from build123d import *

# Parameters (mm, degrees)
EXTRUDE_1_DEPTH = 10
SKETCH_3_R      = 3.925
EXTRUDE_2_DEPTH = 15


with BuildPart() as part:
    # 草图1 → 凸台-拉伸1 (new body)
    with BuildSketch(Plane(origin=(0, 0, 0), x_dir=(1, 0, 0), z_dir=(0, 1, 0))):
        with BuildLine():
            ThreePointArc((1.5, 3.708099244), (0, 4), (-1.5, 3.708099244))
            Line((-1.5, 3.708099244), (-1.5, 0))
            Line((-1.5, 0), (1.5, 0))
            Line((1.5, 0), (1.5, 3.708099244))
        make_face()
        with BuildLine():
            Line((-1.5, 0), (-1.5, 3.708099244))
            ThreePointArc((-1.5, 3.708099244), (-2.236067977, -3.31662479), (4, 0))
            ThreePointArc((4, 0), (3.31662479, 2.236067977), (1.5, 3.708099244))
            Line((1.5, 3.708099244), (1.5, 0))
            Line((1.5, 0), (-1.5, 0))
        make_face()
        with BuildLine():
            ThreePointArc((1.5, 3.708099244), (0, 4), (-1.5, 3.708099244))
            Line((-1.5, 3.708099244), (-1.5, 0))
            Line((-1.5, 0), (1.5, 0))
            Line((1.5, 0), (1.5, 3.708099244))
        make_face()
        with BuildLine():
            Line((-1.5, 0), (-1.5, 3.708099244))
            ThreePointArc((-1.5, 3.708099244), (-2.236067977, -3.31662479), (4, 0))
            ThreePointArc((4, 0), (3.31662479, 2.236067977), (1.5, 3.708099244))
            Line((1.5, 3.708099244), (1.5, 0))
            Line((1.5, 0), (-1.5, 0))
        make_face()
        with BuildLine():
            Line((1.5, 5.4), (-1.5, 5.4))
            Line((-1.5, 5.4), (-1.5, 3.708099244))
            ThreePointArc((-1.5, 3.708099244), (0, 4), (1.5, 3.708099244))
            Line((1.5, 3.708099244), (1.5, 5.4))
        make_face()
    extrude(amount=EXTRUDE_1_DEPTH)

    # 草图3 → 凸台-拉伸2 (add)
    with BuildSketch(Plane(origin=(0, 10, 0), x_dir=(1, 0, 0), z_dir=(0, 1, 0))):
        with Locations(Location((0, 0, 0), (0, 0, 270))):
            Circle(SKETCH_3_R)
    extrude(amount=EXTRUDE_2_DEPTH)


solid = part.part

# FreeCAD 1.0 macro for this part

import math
import FreeCAD as App
import Part
import Sketcher
Q = App.Units.Quantity

doc = App.newDocument("Part")
body = doc.addObject("PartDesign::Body", "Body")

# Sketch on XZ plane
sketch1 = body.newObject("Sketcher::SketchObject", "Sketch")
sketch1.AttachmentSupport = (doc.getObject("XZ_Plane"), [""])
sketch1.MapMode = "FlatFace"
sketch1.addGeometry([
    Part.ArcOfCircle(Part.Circle(App.Vector(0, 0, 0), App.Vector(0, 0, 1), 4), math.radians(0), math.radians(248)),  # 0
    Part.ArcOfCircle(Part.Circle(App.Vector(0, 0, 0), App.Vector(0, 0, 1), 4), math.radians(-68), math.radians(0)),  # 1
    Part.LineSegment(App.Vector(1.5, -3.7, 0), App.Vector(1.5, -5.4, 0)),  # 2
    Part.LineSegment(App.Vector(1.5, -5.4, 0), App.Vector(-1.5, -5.4, 0)),  # 3
    Part.LineSegment(App.Vector(-1.5, -5.4, 0), App.Vector(-1.5, -3.7, 0)),  # 4
], False)
sketch1.addConstraint([
    Sketcher.Constraint("Tangent", 0, 1, 1, 2),
    Sketcher.Constraint("Coincident", 1, 1, 2, 1),
    Sketcher.Constraint("Coincident", 2, 2, 3, 1),
    Sketcher.Constraint("Coincident", 3, 2, 4, 1),
    Sketcher.Constraint("Coincident", 4, 2, 0, 2),
    Sketcher.Constraint("Vertical", 2),
    Sketcher.Constraint("Horizontal", 3),
    Sketcher.Constraint("Vertical", 4),
    Sketcher.Constraint("Coincident", 0, 3, -1, 1),
    Sketcher.Constraint("Equal", 0, 1),
    Sketcher.Constraint("PointOnObject", 0, 1, -1),
    Sketcher.Constraint("Horizontal", 1, 1, 4, 2),
    Sketcher.Constraint("Radius", 0, Q("4 mm")),
    Sketcher.Constraint("DistanceX", 3, 2, 3, 1, Q("3 mm")),
    Sketcher.Constraint("DistanceY", 2, 2, -1, 1, Q("5.4 mm")),
])
pad1 = body.newObject("PartDesign::Pad", "Pad")
pad1.Profile = sketch1
pad1.Length = 10
pad1.Reversed = True

# Sketch on XZ plane
sketch2 = body.newObject("Sketcher::SketchObject", "Sketch001")
sketch2.AttachmentSupport = (doc.getObject("XZ_Plane"), [""])
sketch2.MapMode = "FlatFace"
sketch2.AttachmentOffset = App.Placement(App.Vector(0, 0, -10), App.Rotation())
sketch2.addGeometry(Part.Circle(App.Vector(0, 0, 0), App.Vector(0, 0, 1), 3.9), False)
sketch2.addConstraint([
    Sketcher.Constraint("Coincident", 0, 3, -1, 1),
    Sketcher.Constraint("Diameter", 0, Q("7.85 mm")),
])
pad2 = body.newObject("PartDesign::Pad", "Pad001")
pad2.Profile = sketch2
pad2.Length = 15
pad2.Reversed = True

doc.recompute()
